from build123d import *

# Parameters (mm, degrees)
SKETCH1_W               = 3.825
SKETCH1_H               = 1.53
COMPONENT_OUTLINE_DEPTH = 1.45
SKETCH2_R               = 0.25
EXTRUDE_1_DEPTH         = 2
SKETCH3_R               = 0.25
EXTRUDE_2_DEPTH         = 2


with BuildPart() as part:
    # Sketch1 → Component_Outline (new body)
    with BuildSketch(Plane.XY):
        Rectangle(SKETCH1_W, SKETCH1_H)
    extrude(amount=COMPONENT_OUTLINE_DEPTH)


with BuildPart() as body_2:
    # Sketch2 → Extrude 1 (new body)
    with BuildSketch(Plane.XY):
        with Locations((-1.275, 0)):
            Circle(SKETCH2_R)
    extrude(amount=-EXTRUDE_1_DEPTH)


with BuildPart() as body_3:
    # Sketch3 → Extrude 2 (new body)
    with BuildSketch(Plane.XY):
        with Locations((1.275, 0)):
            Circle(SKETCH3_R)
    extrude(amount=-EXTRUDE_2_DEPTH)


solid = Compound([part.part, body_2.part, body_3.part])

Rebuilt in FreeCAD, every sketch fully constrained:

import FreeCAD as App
import Part
import Sketcher

V = App.Vector

doc = App.newDocument("Part")
params = doc.addObject("Spreadsheet::Sheet", "Params")
for row, (alias, value) in enumerate([
    ("sketch1_height", "1.53 mm"),
    ("pad1_length", "1.45 mm"),
    ("sketch2_diameter", "0.5 mm"),
    ("pad2_length", "2 mm"),
    ("sketch3_diameter", "0.5 mm"),
    ("pad3_length", "2 mm"),
], start=1):
    params.set(f"A{row}", alias)
    params.set(f"B{row}", "=" + value)
    params.setAlias(f"B{row}", alias)

body = doc.addObject("PartDesign::Body", "Body")

sketch1 = body.newObject("Sketcher::SketchObject", "Sketch")
sketch1.AttachmentSupport = (doc.getObject("XY_Plane"), [""])
sketch1.MapMode = "FlatFace"
sketch1.addGeometry(Part.LineSegment(V(-1.9, 0.8, 0), V(-1.9, -0.8, 0)), False)
sketch1.addGeometry(Part.LineSegment(V(-1.9, -0.8, 0), V(1.9, -0.8, 0)), False)
sketch1.addGeometry(Part.LineSegment(V(1.9, -0.8, 0), V(1.9, 0.8, 0)), False)
sketch1.addGeometry(Part.LineSegment(V(1.9, 0.8, 0), V(-1.9, 0.8, 0)), False)
sketch1.addConstraint(Sketcher.Constraint("Coincident", 0, 2, 1, 1))
sketch1.addConstraint(Sketcher.Constraint("Coincident", 1, 2, 2, 1))
sketch1.addConstraint(Sketcher.Constraint("Coincident", 2, 2, 3, 1))
sketch1.addConstraint(Sketcher.Constraint("Coincident", 3, 2, 0, 1))
sketch1.addConstraint(Sketcher.Constraint("Vertical", 0))
sketch1.addConstraint(Sketcher.Constraint("Horizontal", 1))
sketch1.addConstraint(Sketcher.Constraint("Vertical", 2))
sketch1.addConstraint(Sketcher.Constraint("Horizontal", 3))
sketch1.addConstraint(Sketcher.Constraint("Symmetric", 0, 2, 2, 2, -1, 1))
sketch1.addConstraint(Sketcher.Constraint("DistanceY", 0, 2, 0, 1, 1.53))
sketch1.addConstraint(Sketcher.Constraint("DistanceX", 1, 1, 1, 2, 3.825))
sketch1.setExpression("Constraints[9]", "Params.sketch1_height")
pad1 = body.newObject("PartDesign::Pad", "Pad")
pad1.Profile = sketch1
pad1.setExpression("Length", "Params.pad1_length")
body2 = doc.addObject("PartDesign::Body", "Body001")

sketch2 = body2.newObject("Sketcher::SketchObject", "Sketch001")
sketch2.AttachmentSupport = (doc.getObject("XY_Plane001"), [""])
sketch2.MapMode = "FlatFace"
sketch2.addGeometry(Part.Circle(V(-1.27, 0, 0), V(0, 0, 1), 0.25), False)
sketch2.addConstraint(Sketcher.Constraint("PointOnObject", 0, 3, -1))
sketch2.addConstraint(Sketcher.Constraint("Diameter", 0, 0.5))
sketch2.addConstraint(Sketcher.Constraint("DistanceX", 0, 3, -1, 1, 1.275))
sketch2.setExpression("Constraints[1]", "Params.sketch2_diameter")
pad2 = body2.newObject("PartDesign::Pad", "Pad001")
pad2.Profile = sketch2
pad2.setExpression("Length", "Params.pad2_length")
pad2.Reversed = True
body3 = doc.addObject("PartDesign::Body", "Body002")

sketch3 = body3.newObject("Sketcher::SketchObject", "Sketch002")
sketch3.AttachmentSupport = (doc.getObject("XY_Plane002"), [""])
sketch3.MapMode = "FlatFace"
sketch3.addGeometry(Part.Circle(V(1.27, 0, 0), V(0, 0, 1), 0.25), False)
sketch3.addConstraint(Sketcher.Constraint("PointOnObject", 0, 3, -1))
sketch3.addConstraint(Sketcher.Constraint("Diameter", 0, 0.5))
sketch3.addConstraint(Sketcher.Constraint("DistanceX", -1, 1, 0, 3, 1.275))
sketch3.setExpression("Constraints[1]", "Params.sketch3_diameter")
pad3 = body3.newObject("PartDesign::Pad", "Pad002")
pad3.Profile = sketch3
pad3.setExpression("Length", "Params.pad3_length")
pad3.Reversed = True

doc.recompute()
